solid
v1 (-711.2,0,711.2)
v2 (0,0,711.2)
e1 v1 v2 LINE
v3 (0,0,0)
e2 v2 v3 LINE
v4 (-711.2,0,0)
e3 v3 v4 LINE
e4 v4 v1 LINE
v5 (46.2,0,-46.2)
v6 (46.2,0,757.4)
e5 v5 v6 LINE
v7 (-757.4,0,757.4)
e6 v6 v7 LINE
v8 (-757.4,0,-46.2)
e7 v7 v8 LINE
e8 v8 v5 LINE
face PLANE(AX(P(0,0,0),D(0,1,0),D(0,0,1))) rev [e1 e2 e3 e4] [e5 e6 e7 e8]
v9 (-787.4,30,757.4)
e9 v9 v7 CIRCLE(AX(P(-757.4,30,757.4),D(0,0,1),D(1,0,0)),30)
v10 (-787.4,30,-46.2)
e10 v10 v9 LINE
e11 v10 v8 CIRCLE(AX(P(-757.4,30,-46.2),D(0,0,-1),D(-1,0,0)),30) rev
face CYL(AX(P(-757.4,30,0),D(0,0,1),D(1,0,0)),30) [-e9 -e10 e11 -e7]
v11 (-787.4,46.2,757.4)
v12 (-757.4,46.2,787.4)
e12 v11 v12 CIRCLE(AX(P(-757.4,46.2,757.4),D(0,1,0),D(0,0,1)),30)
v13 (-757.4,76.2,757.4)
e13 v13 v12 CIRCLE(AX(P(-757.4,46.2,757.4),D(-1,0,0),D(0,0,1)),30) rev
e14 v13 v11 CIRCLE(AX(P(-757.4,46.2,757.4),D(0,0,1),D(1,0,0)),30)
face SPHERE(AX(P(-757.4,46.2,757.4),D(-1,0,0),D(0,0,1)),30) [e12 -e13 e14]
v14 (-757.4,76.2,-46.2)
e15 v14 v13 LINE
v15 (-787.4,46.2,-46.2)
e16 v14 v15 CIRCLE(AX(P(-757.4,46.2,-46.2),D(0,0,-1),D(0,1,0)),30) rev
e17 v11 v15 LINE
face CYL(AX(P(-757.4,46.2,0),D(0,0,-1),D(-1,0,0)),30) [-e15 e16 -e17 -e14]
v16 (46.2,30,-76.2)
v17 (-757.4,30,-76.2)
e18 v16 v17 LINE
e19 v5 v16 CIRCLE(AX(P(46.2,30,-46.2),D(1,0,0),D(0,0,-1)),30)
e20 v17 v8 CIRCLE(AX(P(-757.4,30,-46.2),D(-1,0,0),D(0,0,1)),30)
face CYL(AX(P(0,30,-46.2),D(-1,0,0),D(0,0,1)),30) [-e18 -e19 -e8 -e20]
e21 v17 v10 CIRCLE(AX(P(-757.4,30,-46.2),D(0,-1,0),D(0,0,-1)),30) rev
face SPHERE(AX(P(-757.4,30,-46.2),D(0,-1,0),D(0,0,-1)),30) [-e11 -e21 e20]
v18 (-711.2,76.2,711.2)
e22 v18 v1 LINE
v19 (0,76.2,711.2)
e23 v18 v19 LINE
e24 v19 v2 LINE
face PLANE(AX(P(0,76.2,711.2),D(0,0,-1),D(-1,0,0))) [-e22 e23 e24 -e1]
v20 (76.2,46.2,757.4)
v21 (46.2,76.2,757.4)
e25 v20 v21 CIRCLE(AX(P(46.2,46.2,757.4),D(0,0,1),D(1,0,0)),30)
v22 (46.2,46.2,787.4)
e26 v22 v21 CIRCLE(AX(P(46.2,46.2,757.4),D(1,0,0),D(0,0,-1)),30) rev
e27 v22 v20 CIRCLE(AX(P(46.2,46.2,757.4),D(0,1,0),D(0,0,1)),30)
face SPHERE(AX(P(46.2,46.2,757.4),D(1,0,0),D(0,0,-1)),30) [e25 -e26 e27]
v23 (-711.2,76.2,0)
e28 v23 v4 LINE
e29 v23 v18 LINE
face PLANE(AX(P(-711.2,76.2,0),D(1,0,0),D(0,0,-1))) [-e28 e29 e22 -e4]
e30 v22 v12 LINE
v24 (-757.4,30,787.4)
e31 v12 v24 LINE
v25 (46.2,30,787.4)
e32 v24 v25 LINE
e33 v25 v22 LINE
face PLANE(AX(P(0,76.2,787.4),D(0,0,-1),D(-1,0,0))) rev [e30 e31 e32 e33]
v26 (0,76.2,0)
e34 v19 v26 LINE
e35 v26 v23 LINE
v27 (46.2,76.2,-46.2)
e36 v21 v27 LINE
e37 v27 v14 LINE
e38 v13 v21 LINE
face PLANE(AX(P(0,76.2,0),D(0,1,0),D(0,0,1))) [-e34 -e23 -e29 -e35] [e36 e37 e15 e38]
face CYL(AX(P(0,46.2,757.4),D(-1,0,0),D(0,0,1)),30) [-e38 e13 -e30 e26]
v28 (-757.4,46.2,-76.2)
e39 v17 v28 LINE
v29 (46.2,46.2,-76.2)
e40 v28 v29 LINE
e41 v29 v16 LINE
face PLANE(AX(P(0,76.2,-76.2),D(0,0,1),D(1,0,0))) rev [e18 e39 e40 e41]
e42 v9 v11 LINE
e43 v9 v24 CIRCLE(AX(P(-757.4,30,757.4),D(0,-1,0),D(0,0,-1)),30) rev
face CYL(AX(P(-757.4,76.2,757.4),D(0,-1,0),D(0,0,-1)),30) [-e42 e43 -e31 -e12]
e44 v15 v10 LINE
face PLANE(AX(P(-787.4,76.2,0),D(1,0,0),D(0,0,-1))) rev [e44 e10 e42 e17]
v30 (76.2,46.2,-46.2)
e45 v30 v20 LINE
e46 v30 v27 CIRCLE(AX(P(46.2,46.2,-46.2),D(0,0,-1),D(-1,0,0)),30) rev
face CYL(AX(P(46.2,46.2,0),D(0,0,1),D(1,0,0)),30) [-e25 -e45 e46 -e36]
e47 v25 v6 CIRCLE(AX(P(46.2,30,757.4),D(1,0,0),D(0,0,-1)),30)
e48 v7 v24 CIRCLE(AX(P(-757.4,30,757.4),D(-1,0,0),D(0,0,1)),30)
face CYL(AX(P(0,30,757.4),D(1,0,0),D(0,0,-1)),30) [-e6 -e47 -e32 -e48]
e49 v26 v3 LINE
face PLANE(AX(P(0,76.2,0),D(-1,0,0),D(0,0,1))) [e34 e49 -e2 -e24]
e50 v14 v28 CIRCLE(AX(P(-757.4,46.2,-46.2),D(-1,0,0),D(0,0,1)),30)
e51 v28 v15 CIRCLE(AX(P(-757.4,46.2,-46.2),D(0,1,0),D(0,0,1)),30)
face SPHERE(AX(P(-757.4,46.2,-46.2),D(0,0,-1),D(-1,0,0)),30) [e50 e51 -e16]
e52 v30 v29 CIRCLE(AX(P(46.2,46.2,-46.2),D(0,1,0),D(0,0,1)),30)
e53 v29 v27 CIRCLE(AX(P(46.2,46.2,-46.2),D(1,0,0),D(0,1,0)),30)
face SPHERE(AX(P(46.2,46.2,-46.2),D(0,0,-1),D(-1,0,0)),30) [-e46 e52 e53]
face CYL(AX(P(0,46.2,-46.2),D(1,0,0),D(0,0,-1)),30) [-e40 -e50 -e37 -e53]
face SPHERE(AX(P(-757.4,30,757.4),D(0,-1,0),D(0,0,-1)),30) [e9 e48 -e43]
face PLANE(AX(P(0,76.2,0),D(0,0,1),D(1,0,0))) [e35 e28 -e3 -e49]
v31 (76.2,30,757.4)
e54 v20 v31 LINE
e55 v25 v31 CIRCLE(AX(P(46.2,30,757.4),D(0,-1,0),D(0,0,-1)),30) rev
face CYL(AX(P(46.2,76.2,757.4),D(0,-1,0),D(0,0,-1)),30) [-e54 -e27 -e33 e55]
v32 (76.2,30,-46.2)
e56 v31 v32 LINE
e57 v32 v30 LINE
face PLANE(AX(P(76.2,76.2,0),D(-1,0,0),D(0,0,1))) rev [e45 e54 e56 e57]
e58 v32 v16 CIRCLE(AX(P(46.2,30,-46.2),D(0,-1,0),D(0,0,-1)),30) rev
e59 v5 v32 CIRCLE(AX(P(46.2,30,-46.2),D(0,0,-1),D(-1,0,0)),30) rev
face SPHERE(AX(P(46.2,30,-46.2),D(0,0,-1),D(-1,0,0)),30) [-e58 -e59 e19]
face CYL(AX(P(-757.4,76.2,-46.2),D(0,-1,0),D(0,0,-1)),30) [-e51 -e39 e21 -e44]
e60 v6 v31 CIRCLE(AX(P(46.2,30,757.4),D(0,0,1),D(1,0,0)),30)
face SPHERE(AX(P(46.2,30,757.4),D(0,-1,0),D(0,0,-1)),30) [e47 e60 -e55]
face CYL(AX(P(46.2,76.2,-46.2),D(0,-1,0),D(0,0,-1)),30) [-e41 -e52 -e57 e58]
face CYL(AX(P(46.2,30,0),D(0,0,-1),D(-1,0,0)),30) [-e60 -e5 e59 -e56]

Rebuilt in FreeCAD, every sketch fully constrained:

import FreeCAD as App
import Part
import Sketcher

V = App.Vector
Q = App.Units.Quantity


def edges_at(feature, points):
    """Names of the edges that pass closest to the given points."""
    edges = feature.Shape.Edges
    near = lambda p: min(range(len(edges)), key=lambda i: edges[i].distToShape(Part.Vertex(*p))[0])
    return sorted({f"Edge{near(p) + 1}" for p in points})

doc = App.newDocument("Part")
params = doc.addObject("Spreadsheet::Sheet", "Params")
for row, (alias, value) in enumerate([
    ("sketch1_width", "34 in"),
    ("sketch1_width2", "28 in"),
    ("pad1_length", "3 in"),
    ("fillet_radius", "30 mm"),
], start=1):
    params.set(f"A{row}", alias)
    params.set(f"B{row}", "=" + value)
    params.setAlias(f"B{row}", alias)

body = doc.addObject("PartDesign::Body", "Body")

# Sketch on XZ plane
sketch1 = body.newObject("Sketcher::SketchObject", "Sketch")
sketch1.AttachmentSupport = (doc.getObject("XZ_Plane"), [""])
sketch1.MapMode = "FlatFace"
sketch1.addGeometry(Part.LineSegment(V(-787.4, -76.2, 0), V(-787.4, 787.4, 0)), False)
sketch1.addGeometry(Part.LineSegment(V(-787.4, 787.4, 0), V(76.2, 787.4, 0)), False)
sketch1.addGeometry(Part.LineSegment(V(76.2, 787.4, 0), V(76.2, -76.2, 0)), False)
sketch1.addGeometry(Part.LineSegment(V(76.2, -76.2, 0), V(-787.4, -76.2, 0)), False)
sketch1.addGeometry(Part.LineSegment(V(0, 711.2, 0), V(-711.2, 711.2, 0)), False)
sketch1.addGeometry(Part.LineSegment(V(-711.2, 711.2, 0), V(-711.2, 0, 0)), False)
sketch1.addGeometry(Part.LineSegment(V(-711.2, 0, 0), V(0, 0, 0)), False)
sketch1.addGeometry(Part.LineSegment(V(0, 0, 0), V(0, 711.2, 0)), False)
sketch1.addConstraint(Sketcher.Constraint("Coincident", 0, 2, 1, 1))
sketch1.addConstraint(Sketcher.Constraint("Coincident", 1, 2, 2, 1))
sketch1.addConstraint(Sketcher.Constraint("Coincident", 2, 2, 3, 1))
sketch1.addConstraint(Sketcher.Constraint("Coincident", 3, 2, 0, 1))
sketch1.addConstraint(Sketcher.Constraint("Coincident", 4, 2, 5, 1))
sketch1.addConstraint(Sketcher.Constraint("Coincident", 5, 2, 6, 1))
sketch1.addConstraint(Sketcher.Constraint("Coincident", 6, 2, 7, 1))
sketch1.addConstraint(Sketcher.Constraint("Coincident", 7, 2, 4, 1))
sketch1.addConstraint(Sketcher.Constraint("Vertical", 0))
sketch1.addConstraint(Sketcher.Constraint("Horizontal", 1))
sketch1.addConstraint(Sketcher.Constraint("Vertical", 2))
sketch1.addConstraint(Sketcher.Constraint("Horizontal", 3))
sketch1.addConstraint(Sketcher.Constraint("Horizontal", 4))
sketch1.addConstraint(Sketcher.Constraint("Vertical", 5))
sketch1.addConstraint(Sketcher.Constraint("Horizontal", 6))
sketch1.addConstraint(Sketcher.Constraint("Vertical", 7))
sketch1.addConstraint(Sketcher.Constraint("Coincident", 6, 2, -1, 1))
sketch1.addConstraint(Sketcher.Constraint("Equal", 3, 0))
sketch1.addConstraint(Sketcher.Constraint("Equal", 6, 5))
sketch1.addConstraint(Sketcher.Constraint("DistanceX", 1, 1, 1, 2, Q("34 in")))
sketch1.addConstraint(Sketcher.Constraint("DistanceX", 4, 2, 4, 1, Q("28 in")))
sketch1.addConstraint(Sketcher.Constraint("DistanceX", 0, 2, -1, 1, Q("31 in")))
sketch1.addConstraint(Sketcher.Constraint("DistanceY", -1, 1, 0, 2, Q("31 in")))
sketch1.setExpression("Constraints[19]", "Params.sketch1_width")
sketch1.setExpression("Constraints[20]", "Params.sketch1_width2")
pad1 = body.newObject("PartDesign::Pad", "Pad")
pad1.Profile = sketch1
pad1.setExpression("Length", "Params.pad1_length")
pad1.Reversed = True
doc.recompute()

fillet = body.newObject("PartDesign::Fillet", "Fillet")
fillet.Base = (pad1, edges_at(pad1, [
    (-787.4, 76.2, 355.6),
    (-355.6, 76.2, 787.4),
    (-355.6, 0, 787.4),
    (-787.4, 0, 355.6),
    (-355.6, 0, -76.2),
    (76.2, 0, 355.6),
    (76.2, 76.2, 355.6),
    (76.2, 38.1, 787.4),
    (-787.4, 38.1, 787.4),
    (-787.4, 38.1, -76.2),
    (76.2, 38.1, -76.2),
    (-355.6, 76.2, -76.2),
]))
fillet.setExpression("Radius", "Params.fillet_radius")

doc.recompute()
